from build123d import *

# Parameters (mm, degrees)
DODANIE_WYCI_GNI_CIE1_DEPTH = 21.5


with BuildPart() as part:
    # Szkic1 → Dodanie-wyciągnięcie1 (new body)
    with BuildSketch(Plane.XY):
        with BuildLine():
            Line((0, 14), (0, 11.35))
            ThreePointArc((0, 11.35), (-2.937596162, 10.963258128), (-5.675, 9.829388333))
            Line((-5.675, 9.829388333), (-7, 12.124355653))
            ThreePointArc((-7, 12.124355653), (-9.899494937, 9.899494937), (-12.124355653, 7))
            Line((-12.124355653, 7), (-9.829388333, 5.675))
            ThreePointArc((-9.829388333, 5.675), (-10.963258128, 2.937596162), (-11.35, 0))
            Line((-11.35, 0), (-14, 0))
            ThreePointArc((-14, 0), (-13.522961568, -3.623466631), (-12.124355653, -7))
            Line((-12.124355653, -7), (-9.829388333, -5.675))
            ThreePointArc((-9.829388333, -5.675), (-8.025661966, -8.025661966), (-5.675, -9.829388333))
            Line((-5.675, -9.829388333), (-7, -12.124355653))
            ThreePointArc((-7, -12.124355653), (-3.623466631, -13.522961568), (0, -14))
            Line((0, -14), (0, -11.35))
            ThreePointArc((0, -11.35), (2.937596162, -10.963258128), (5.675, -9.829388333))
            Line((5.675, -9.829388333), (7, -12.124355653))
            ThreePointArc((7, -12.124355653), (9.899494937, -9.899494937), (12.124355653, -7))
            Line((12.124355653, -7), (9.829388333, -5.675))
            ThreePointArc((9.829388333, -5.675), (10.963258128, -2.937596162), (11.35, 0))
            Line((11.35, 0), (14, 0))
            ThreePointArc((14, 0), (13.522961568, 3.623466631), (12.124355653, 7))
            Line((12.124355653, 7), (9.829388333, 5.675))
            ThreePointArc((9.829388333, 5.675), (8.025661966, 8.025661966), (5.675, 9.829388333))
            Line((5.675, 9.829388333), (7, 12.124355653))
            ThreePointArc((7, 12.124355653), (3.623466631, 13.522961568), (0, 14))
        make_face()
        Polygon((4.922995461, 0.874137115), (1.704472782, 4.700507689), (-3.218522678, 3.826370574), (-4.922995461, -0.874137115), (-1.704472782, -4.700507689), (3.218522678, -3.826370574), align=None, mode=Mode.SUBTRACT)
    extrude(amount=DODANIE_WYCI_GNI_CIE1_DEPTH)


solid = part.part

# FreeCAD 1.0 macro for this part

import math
import FreeCAD as App
import Part
import Sketcher
from FreeCAD import Vector
Q = App.Units.Quantity

doc = App.newDocument("Part")
params = doc.addObject("Spreadsheet::Sheet", "Params")
for row, (alias, value) in enumerate([
    ("sketch1_radius", "14 mm"),
    ("sketch1_radius2", "11.35 mm"),
    ("sketch1_length", "5 mm"),
    ("pad1_length", "21.5 mm"),
], start=1):
    params.set(f"A{row}", alias)
    params.set(f"B{row}", "=" + value)
    params.setAlias(f"B{row}", alias)

body = doc.addObject("PartDesign::Body", "Body")

# Sketch on XY plane
sketch1 = body.newObject("Sketcher::SketchObject", "Sketch")
sketch1.AttachmentSupport = (doc.getObject("XY_Plane"), [""])
sketch1.MapMode = "FlatFace"
sketch1.addGeometry([
    Part.LineSegment(Vector(0, 14, 0), Vector(0, 11.35, 0)),  # 0
    Part.ArcOfCircle(Part.Circle(Vector(0, 0, 0), Vector(0, 0, 1), 11.35), math.radians(90), math.radians(120)),  # 1
    Part.LineSegment(Vector(-5.675, 9.829388, 0), Vector(-7, 12.124356, 0)),  # 2
    Part.ArcOfCircle(Part.Circle(Vector(0, 0, 0), Vector(0, 0, 1), 14), math.radians(120), math.radians(150)),  # 3
    Part.LineSegment(Vector(-12.124356, 7, 0), Vector(-9.829388, 5.675, 0)),  # 4
    Part.ArcOfCircle(Part.Circle(Vector(0, 0, 0), Vector(0, 0, 1), 11.35), math.radians(150), math.radians(180)),  # 5
    Part.LineSegment(Vector(-11.35, 0, 0), Vector(-14, 0, 0)),  # 6
    Part.ArcOfCircle(Part.Circle(Vector(0, 0, 0), Vector(0, 0, 1), 14), math.radians(-180), math.radians(-150)),  # 7
    Part.LineSegment(Vector(-12.124356, -7, 0), Vector(-9.829388, -5.675, 0)),  # 8
    Part.ArcOfCircle(Part.Circle(Vector(0, 0, 0), Vector(0, 0, 1), 11.35), math.radians(-150), math.radians(-120)),  # 9
    Part.LineSegment(Vector(-5.675, -9.829388, 0), Vector(-7, -12.124356, 0)),  # 10
    Part.ArcOfCircle(Part.Circle(Vector(0, 0, 0), Vector(0, 0, 1), 14), math.radians(-120), math.radians(-90)),  # 11
    Part.LineSegment(Vector(0, -14, 0), Vector(0, -11.35, 0)),  # 12
    Part.ArcOfCircle(Part.Circle(Vector(0, 0, 0), Vector(0, 0, 1), 11.35), math.radians(-90), math.radians(-60)),  # 13
    Part.LineSegment(Vector(5.675, -9.829388, 0), Vector(7, -12.124356, 0)),  # 14
    Part.ArcOfCircle(Part.Circle(Vector(0, 0, 0), Vector(0, 0, 1), 14), math.radians(-60), math.radians(-30)),  # 15
    Part.LineSegment(Vector(12.124356, -7, 0), Vector(9.829388, -5.675, 0)),  # 16
    Part.ArcOfCircle(Part.Circle(Vector(0, 0, 0), Vector(0, 0, 1), 11.35), math.radians(-30), math.radians(0)),  # 17
    Part.LineSegment(Vector(11.35, 0, 0), Vector(14, 0, 0)),  # 18
    Part.ArcOfCircle(Part.Circle(Vector(0, 0, 0), Vector(0, 0, 1), 14), math.radians(0), math.radians(30)),  # 19
    Part.LineSegment(Vector(12.124356, 7, 0), Vector(9.829388, 5.675, 0)),  # 20
    Part.ArcOfCircle(Part.Circle(Vector(0, 0, 0), Vector(0, 0, 1), 11.35), math.radians(30), math.radians(60)),  # 21
    Part.LineSegment(Vector(5.675, 9.829388, 0), Vector(7, 12.124356, 0)),  # 22
    Part.ArcOfCircle(Part.Circle(Vector(0, 0, 0), Vector(0, 0, 1), 14), math.radians(60), math.radians(90)),  # 23
    Part.LineSegment(Vector(1.704473, 4.700508, 0), Vector(4.922995, 0.874137, 0)),  # 24
    Part.LineSegment(Vector(4.922995, 0.874137, 0), Vector(3.218523, -3.826371, 0)),  # 25
    Part.LineSegment(Vector(3.218523, -3.826371, 0), Vector(-1.704473, -4.700508, 0)),  # 26
    Part.LineSegment(Vector(-1.704473, -4.700508, 0), Vector(-4.922995, -0.874137, 0)),  # 27
    Part.LineSegment(Vector(-4.922995, -0.874137, 0), Vector(-3.218523, 3.826371, 0)),  # 28
    Part.LineSegment(Vector(-3.218523, 3.826371, 0), Vector(1.704473, 4.700508, 0)),  # 29
], False)
sketch1.addConstraint([
    Sketcher.Constraint("Coincident", 0, 2, 1, 1),
    Sketcher.Constraint("Coincident", 1, 2, 2, 1),
    Sketcher.Constraint("Coincident", 2, 2, 3, 1),
    Sketcher.Constraint("Coincident", 3, 2, 4, 1),
    Sketcher.Constraint("Coincident", 4, 2, 5, 1),
    Sketcher.Constraint("Coincident", 5, 2, 6, 1),
    Sketcher.Constraint("Coincident", 6, 2, 7, 1),
    Sketcher.Constraint("Coincident", 7, 2, 8, 1),
    Sketcher.Constraint("Coincident", 8, 2, 9, 1),
    Sketcher.Constraint("Coincident", 9, 2, 10, 1),
    Sketcher.Constraint("Coincident", 10, 2, 11, 1),
    Sketcher.Constraint("Coincident", 11, 2, 12, 1),
    Sketcher.Constraint("Coincident", 12, 2, 13, 1),
    Sketcher.Constraint("Coincident", 13, 2, 14, 1),
    Sketcher.Constraint("Coincident", 14, 2, 15, 1),
    Sketcher.Constraint("Coincident", 15, 2, 16, 1),
    Sketcher.Constraint("Coincident", 16, 2, 17, 1),
    Sketcher.Constraint("Coincident", 17, 2, 18, 1),
    Sketcher.Constraint("Coincident", 18, 2, 19, 1),
    Sketcher.Constraint("Coincident", 19, 2, 20, 1),
    Sketcher.Constraint("Coincident", 20, 2, 21, 1),
    Sketcher.Constraint("Coincident", 21, 2, 22, 1),
    Sketcher.Constraint("Coincident", 22, 2, 23, 1),
    Sketcher.Constraint("Coincident", 23, 2, 0, 1),
    Sketcher.Constraint("Coincident", 24, 2, 25, 1),
    Sketcher.Constraint("Coincident", 25, 2, 26, 1),
    Sketcher.Constraint("Coincident", 26, 2, 27, 1),
    Sketcher.Constraint("Coincident", 27, 2, 28, 1),
    Sketcher.Constraint("Coincident", 28, 2, 29, 1),
    Sketcher.Constraint("Coincident", 29, 2, 24, 1),
    Sketcher.Constraint("Vertical", 0),
    Sketcher.Constraint("Horizontal", 6),
    Sketcher.Constraint("Vertical", 12),
    Sketcher.Constraint("Horizontal", 18),
    Sketcher.Constraint("Coincident", 1, 3, -1, 1),
    Sketcher.Constraint("Coincident", 3, 3, -1, 1),
    Sketcher.Constraint("Coincident", 5, 3, -1, 1),
    Sketcher.Constraint("Coincident", 7, 3, -1, 1),
    Sketcher.Constraint("Coincident", 9, 3, -1, 1),
    Sketcher.Constraint("Coincident", 11, 3, -1, 1),
    Sketcher.Constraint("Coincident", 13, 3, -1, 1),
    Sketcher.Constraint("Coincident", 15, 3, -1, 1),
    Sketcher.Constraint("Coincident", 17, 3, -1, 1),
    Sketcher.Constraint("Coincident", 19, 3, -1, 1),
    Sketcher.Constraint("Coincident", 21, 3, -1, 1),
    Sketcher.Constraint("Coincident", 23, 3, -1, 1),
    Sketcher.Constraint("Equal", 1, 5),
    Sketcher.Constraint("Equal", 3, 7),
    Sketcher.Constraint("Equal", 5, 9),
    Sketcher.Constraint("Equal", 7, 11),
    Sketcher.Constraint("Equal", 9, 13),
    Sketcher.Constraint("Equal", 11, 15),
    Sketcher.Constraint("Equal", 13, 17),
    Sketcher.Constraint("Equal", 15, 19),
    Sketcher.Constraint("Equal", 17, 21),
    Sketcher.Constraint("Equal", 19, 23),
    Sketcher.Constraint("Symmetric", 24, 2, 27, 2, -1, 1),
    Sketcher.Constraint("Symmetric", 25, 2, 28, 2, -1, 1),
    Sketcher.Constraint("Symmetric", 26, 2, 29, 2, -1, 1),
    Sketcher.Constraint("PointOnObject", 0, 2, -2),
    Sketcher.Constraint("PointOnObject", 5, 2, -1),
    Sketcher.Constraint("PointOnObject", 11, 2, -2),
    Sketcher.Constraint("PointOnObject", 17, 2, -1),
    Sketcher.Constraint("Perpendicular", 2, 8),
    Sketcher.Constraint("Perpendicular", 4, 10),
    Sketcher.Constraint("Perpendicular", 8, 14),
    Sketcher.Constraint("Perpendicular", 10, 16),
    Sketcher.Constraint("Perpendicular", 14, 20),
    Sketcher.Constraint("Perpendicular", 16, 22),
    Sketcher.Constraint("Horizontal", 9, 2, 13, 2),
    Sketcher.Constraint("Horizontal", 10, 2, 14, 2),
    Sketcher.Constraint("Horizontal", 7, 2, 15, 2),
    Sketcher.Constraint("Horizontal", 3, 2, 19, 2),
    Sketcher.Constraint("Horizontal", 1, 2, 21, 2),
    Sketcher.Constraint("Vertical", 3, 2, 7, 2),
    Sketcher.Constraint("Vertical", 1, 2, 9, 2),
    Sketcher.Constraint("Equal", 24, 25),
    Sketcher.Constraint("Equal", 25, 26),
    Sketcher.Constraint("Radius", 3, Q("14 mm")),
    Sketcher.Constraint("Angle", 2, Q("120 deg")),
    Sketcher.Constraint("Radius", 1, Q("11.35 mm")),
    Sketcher.Constraint("Distance", 24, Q("5 mm")),
    Sketcher.Constraint("DistanceX", 2, 2, -1, 1, Q("7 mm")),
    Sketcher.Constraint("DistanceY", -1, 1, 3, 2, Q("7 mm")),
    Sketcher.Constraint("DistanceY", 25, 2, -1, 1, Q("3.826371 mm")),
    Sketcher.Constraint("DistanceX", -1, 1, 24, 2, Q("4.922995 mm")),
    Sketcher.Constraint("DistanceY", -1, 1, 24, 2, Q("0.874137 mm")),
])
sketch1.setExpression("Constraints[78]", "Params.sketch1_radius")
sketch1.setExpression("Constraints[80]", "Params.sketch1_radius2")
sketch1.setExpression("Constraints[81]", "Params.sketch1_length")
pad1 = body.newObject("PartDesign::Pad", "Pad")
pad1.Profile = sketch1
pad1.setExpression("Length", "Params.pad1_length")

doc.recompute()
